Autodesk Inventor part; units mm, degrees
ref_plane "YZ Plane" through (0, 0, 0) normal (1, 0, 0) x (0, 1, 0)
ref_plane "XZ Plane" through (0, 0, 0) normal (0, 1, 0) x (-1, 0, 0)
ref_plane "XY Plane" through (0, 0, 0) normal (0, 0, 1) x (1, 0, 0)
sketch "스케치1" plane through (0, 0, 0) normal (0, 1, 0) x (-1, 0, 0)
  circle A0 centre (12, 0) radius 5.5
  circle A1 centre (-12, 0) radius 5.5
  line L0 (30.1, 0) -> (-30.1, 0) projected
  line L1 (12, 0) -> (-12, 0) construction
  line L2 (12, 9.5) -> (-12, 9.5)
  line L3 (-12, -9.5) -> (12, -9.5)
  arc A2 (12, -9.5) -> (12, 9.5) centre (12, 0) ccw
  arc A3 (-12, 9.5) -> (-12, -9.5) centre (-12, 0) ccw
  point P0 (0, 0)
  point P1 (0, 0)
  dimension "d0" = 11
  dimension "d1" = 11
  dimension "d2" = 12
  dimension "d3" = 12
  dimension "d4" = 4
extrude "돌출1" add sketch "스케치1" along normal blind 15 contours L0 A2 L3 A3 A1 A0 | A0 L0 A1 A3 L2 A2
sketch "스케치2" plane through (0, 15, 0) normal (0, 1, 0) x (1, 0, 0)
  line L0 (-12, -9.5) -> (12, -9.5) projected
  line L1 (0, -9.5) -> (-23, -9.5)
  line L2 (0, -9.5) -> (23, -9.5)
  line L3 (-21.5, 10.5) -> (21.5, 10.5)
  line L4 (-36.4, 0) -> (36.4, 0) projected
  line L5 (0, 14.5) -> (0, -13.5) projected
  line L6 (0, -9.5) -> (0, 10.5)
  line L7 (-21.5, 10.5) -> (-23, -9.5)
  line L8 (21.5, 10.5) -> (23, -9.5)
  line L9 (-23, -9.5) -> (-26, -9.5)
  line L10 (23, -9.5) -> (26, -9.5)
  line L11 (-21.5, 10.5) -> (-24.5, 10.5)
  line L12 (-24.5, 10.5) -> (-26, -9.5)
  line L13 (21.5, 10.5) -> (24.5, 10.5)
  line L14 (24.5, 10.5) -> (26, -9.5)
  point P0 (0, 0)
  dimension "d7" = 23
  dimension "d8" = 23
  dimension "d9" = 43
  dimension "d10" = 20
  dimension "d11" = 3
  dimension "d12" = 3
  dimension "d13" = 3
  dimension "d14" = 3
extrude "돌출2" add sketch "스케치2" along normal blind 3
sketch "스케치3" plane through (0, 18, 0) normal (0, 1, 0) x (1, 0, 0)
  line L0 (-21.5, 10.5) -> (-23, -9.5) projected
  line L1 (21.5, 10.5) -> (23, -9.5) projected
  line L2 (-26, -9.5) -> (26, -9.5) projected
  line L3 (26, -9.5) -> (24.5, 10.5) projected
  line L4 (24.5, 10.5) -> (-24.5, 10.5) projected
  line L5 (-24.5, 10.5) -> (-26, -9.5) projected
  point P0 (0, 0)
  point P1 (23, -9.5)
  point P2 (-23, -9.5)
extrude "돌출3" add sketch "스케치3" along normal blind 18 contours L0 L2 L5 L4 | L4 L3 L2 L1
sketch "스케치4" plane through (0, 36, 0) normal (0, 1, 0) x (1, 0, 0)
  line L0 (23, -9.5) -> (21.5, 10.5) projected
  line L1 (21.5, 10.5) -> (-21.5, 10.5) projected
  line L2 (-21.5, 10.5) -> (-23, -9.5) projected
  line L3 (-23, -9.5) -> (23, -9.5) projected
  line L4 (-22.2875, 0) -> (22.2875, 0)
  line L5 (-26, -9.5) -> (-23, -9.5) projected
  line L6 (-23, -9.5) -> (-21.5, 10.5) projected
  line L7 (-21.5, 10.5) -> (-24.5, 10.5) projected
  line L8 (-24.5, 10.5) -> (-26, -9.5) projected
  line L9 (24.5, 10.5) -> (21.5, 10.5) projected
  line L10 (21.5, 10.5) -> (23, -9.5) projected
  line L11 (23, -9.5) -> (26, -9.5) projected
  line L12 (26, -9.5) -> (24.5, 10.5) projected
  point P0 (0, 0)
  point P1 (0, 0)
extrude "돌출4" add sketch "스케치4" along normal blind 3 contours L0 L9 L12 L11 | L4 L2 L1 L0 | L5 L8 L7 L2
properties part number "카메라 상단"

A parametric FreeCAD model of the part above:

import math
import FreeCAD as App
import Part
import Sketcher
from FreeCAD import Vector
Q = App.Units.Quantity

doc = App.newDocument("Part")
body = doc.addObject("PartDesign::Body", "Body")

# Sketch on XZ plane
sketch1 = doc.addObject("Sketcher::SketchObject", "Sketch")
body.addObject(sketch1)
sketch1.AttachmentSupport = (doc.XZ_Plane, [""])
sketch1.MapMode = "FlatFace"
sketch1.addGeometry(Part.ArcOfCircle(Part.Circle(Vector(-12, 0, 0), Vector(0, 0, 1), 9.5), math.radians(90), math.radians(270)), False)
sketch1.addGeometry(Part.LineSegment(Vector(-12, 9.5, 0), Vector(12, 9.5, 0)), False)
sketch1.addGeometry(Part.ArcOfCircle(Part.Circle(Vector(12, 0, 0), Vector(0, 0, 1), 9.5), math.radians(-90), math.radians(90)), False)
sketch1.addGeometry(Part.LineSegment(Vector(12, -9.5, 0), Vector(-12, -9.5, 0)), False)
sketch1.addGeometry(Part.Circle(Vector(12, 0, 0), Vector(0, 0, 1), 5.5), False)
sketch1.addGeometry(Part.Circle(Vector(-12, 0, 0), Vector(0, 0, 1), 5.5), False)
sketch1.addConstraint(Sketcher.Constraint("Tangent", 0, 1, 1, 1))
sketch1.addConstraint(Sketcher.Constraint("Tangent", 1, 2, 2, 2))
sketch1.addConstraint(Sketcher.Constraint("Tangent", 2, 1, 3, 1))
sketch1.addConstraint(Sketcher.Constraint("Tangent", 3, 2, 0, 2))
sketch1.addConstraint(Sketcher.Constraint("Horizontal", 1))
sketch1.addConstraint(Sketcher.Constraint("Horizontal", 3))
sketch1.addConstraint(Sketcher.Constraint("Coincident", 4, 3, 2, 3))
sketch1.addConstraint(Sketcher.Constraint("Coincident", 5, 3, 0, 3))
sketch1.addConstraint(Sketcher.Constraint("Equal", 4, 5))
sketch1.addConstraint(Sketcher.Constraint("Symmetric", 0, 3, 2, 3, -1, 1))
sketch1.addConstraint(Sketcher.Constraint("Diameter", 4, Q("11 mm")))
sketch1.addConstraint(Sketcher.Constraint("DistanceX", 0, 3, -1, 1, Q("12 mm")))
sketch1.addConstraint(Sketcher.Constraint("Radius", 0, Q("9.5 mm")))
pad1 = doc.addObject("PartDesign::Pad", "Pad")
body.addObject(pad1)
pad1.Profile = sketch1
pad1.Length = 15
pad1.Reversed = True

# Sketch on XZ plane
sketch2 = doc.addObject("Sketcher::SketchObject", "Sketch001")
body.addObject(sketch2)
sketch2.AttachmentSupport = (doc.XZ_Plane, [""])
sketch2.MapMode = "FlatFace"
sketch2.AttachmentOffset = App.Placement(Vector(0, 0, -15), App.Rotation())
sketch2.addGeometry(Part.LineSegment(Vector(26, 9.5, 0), Vector(24.5, -10.5, 0)), False)
sketch2.addGeometry(Part.LineSegment(Vector(24.5, -10.5, 0), Vector(-24.5, -10.5, 0)), False)
sketch2.addGeometry(Part.LineSegment(Vector(-24.5, -10.5, 0), Vector(-26, 9.5, 0)), False)
sketch2.addGeometry(Part.LineSegment(Vector(-26, 9.5, 0), Vector(26, 9.5, 0)), False)
sketch2.addConstraint(Sketcher.Constraint("Coincident", 0, 2, 1, 1))
sketch2.addConstraint(Sketcher.Constraint("Coincident", 1, 2, 2, 1))
sketch2.addConstraint(Sketcher.Constraint("Coincident", 2, 2, 3, 1))
sketch2.addConstraint(Sketcher.Constraint("Coincident", 3, 2, 0, 1))
sketch2.addConstraint(Sketcher.Constraint("Horizontal", 1))
sketch2.addConstraint(Sketcher.Constraint("Horizontal", 3))
sketch2.addConstraint(Sketcher.Constraint("Equal", 0, 2))
sketch2.addConstraint(Sketcher.Constraint("DistanceY", 1, 2, 2, 2, Q("20 mm")))
sketch2.addConstraint(Sketcher.Constraint("DistanceX", 1, 2, 1, 1, Q("49 mm")))
sketch2.addConstraint(Sketcher.Constraint("DistanceX", 3, 1, 3, 2, Q("52 mm")))
sketch2.addConstraint(Sketcher.Constraint("DistanceX", 2, 2, -1, 1, Q("26 mm")))
sketch2.addConstraint(Sketcher.Constraint("DistanceY", 0, 2, -1, 1, Q("10.5 mm")))
pad2 = doc.addObject("PartDesign::Pad", "Pad001")
body.addObject(pad2)
pad2.Profile = sketch2
pad2.Length = 3
pad2.Reversed = True

# Sketch on XZ plane
sketch3 = doc.addObject("Sketcher::SketchObject", "Sketch002")
body.addObject(sketch3)
sketch3.AttachmentSupport = (doc.XZ_Plane, [""])
sketch3.MapMode = "FlatFace"
sketch3.AttachmentOffset = App.Placement(Vector(0, 0, -18), App.Rotation())
sketch3.addGeometry(Part.LineSegment(Vector(-23, 9.5, 0), Vector(-21.5, -10.5, 0)), False)
sketch3.addGeometry(Part.LineSegment(Vector(-21.5, -10.5, 0), Vector(-24.5, -10.5, 0)), False)
sketch3.addGeometry(Part.LineSegment(Vector(-24.5, -10.5, 0), Vector(-26, 9.5, 0)), False)
sketch3.addGeometry(Part.LineSegment(Vector(-26, 9.5, 0), Vector(-23, 9.5, 0)), False)
sketch3.addGeometry(Part.LineSegment(Vector(24.5, -10.5, 0), Vector(21.5, -10.5, 0)), False)
sketch3.addGeometry(Part.LineSegment(Vector(21.5, -10.5, 0), Vector(23, 9.5, 0)), False)
sketch3.addGeometry(Part.LineSegment(Vector(23, 9.5, 0), Vector(26, 9.5, 0)), False)
sketch3.addGeometry(Part.LineSegment(Vector(26, 9.5, 0), Vector(24.5, -10.5, 0)), False)
sketch3.addConstraint(Sketcher.Constraint("Coincident", 0, 2, 1, 1))
sketch3.addConstraint(Sketcher.Constraint("Coincident", 1, 2, 2, 1))
sketch3.addConstraint(Sketcher.Constraint("Coincident", 2, 2, 3, 1))
sketch3.addConstraint(Sketcher.Constraint("Coincident", 3, 2, 0, 1))
sketch3.addConstraint(Sketcher.Constraint("Coincident", 4, 2, 5, 1))
sketch3.addConstraint(Sketcher.Constraint("Coincident", 5, 2, 6, 1))
sketch3.addConstraint(Sketcher.Constraint("Coincident", 6, 2, 7, 1))
sketch3.addConstraint(Sketcher.Constraint("Coincident", 7, 2, 4, 1))
sketch3.addConstraint(Sketcher.Constraint("Horizontal", 1))
sketch3.addConstraint(Sketcher.Constraint("Horizontal", 3))
sketch3.addConstraint(Sketcher.Constraint("Horizontal", 4))
sketch3.addConstraint(Sketcher.Constraint("Horizontal", 6))
sketch3.addConstraint(Sketcher.Constraint("Symmetric", 0, 2, 4, 2, -2))
sketch3.addConstraint(Sketcher.Constraint("Symmetric", 3, 2, 5, 2, -2))
sketch3.addConstraint(Sketcher.Constraint("Parallel", 0, 2))
sketch3.addConstraint(Sketcher.Constraint("Parallel", 5, 7))
sketch3.addConstraint(Sketcher.Constraint("Equal", 3, 4))
sketch3.addConstraint(Sketcher.Constraint("DistanceX", 1, 2, 1, 1, Q("3 mm")))
sketch3.addConstraint(Sketcher.Constraint("DistanceX", 2, 2, -1, 1, Q("26 mm")))
sketch3.addConstraint(Sketcher.Constraint("DistanceY", 1, 2, 2, 2, Q("20 mm")))
sketch3.addConstraint(Sketcher.Constraint("DistanceX", 0, 2, 4, 2, Q("43 mm")))
sketch3.addConstraint(Sketcher.Constraint("DistanceY", 0, 2, -1, 1, Q("10.5 mm")))
pad3 = doc.addObject("PartDesign::Pad", "Pad002")
body.addObject(pad3)
pad3.Profile = sketch3
pad3.Length = 18
pad3.Reversed = True

# Sketch on XZ plane
sketch4 = doc.addObject("Sketcher::SketchObject", "Sketch003")
body.addObject(sketch4)
sketch4.AttachmentSupport = (doc.XZ_Plane, [""])
sketch4.MapMode = "FlatFace"
sketch4.AttachmentOffset = App.Placement(Vector(0, 0, -36), App.Rotation())
sketch4.addGeometry(Part.LineSegment(Vector(22.2875, 0, 0), Vector(23, 9.5, 0)), False)
sketch4.addGeometry(Part.LineSegment(Vector(23, 9.5, 0), Vector(26, 9.5, 0)), False)
sketch4.addGeometry(Part.LineSegment(Vector(26, 9.5, 0), Vector(24.5, -10.5, 0)), False)
sketch4.addGeometry(Part.LineSegment(Vector(24.5, -10.5, 0), Vector(-24.5, -10.5, 0)), False)
sketch4.addGeometry(Part.LineSegment(Vector(-24.5, -10.5, 0), Vector(-26, 9.5, 0)), False)
sketch4.addGeometry(Part.LineSegment(Vector(-26, 9.5, 0), Vector(-23, 9.5, 0)), False)
sketch4.addGeometry(Part.LineSegment(Vector(-23, 9.5, 0), Vector(-22.2875, 0, 0)), False)
sketch4.addGeometry(Part.LineSegment(Vector(-22.2875, 0, 0), Vector(22.2875, 0, 0)), False)
sketch4.addConstraint(Sketcher.Constraint("Coincident", 0, 2, 1, 1))
sketch4.addConstraint(Sketcher.Constraint("Coincident", 1, 2, 2, 1))
sketch4.addConstraint(Sketcher.Constraint("Coincident", 2, 2, 3, 1))
sketch4.addConstraint(Sketcher.Constraint("Coincident", 3, 2, 4, 1))
sketch4.addConstraint(Sketcher.Constraint("Coincident", 4, 2, 5, 1))
sketch4.addConstraint(Sketcher.Constraint("Coincident", 5, 2, 6, 1))
sketch4.addConstraint(Sketcher.Constraint("Coincident", 6, 2, 7, 1))
sketch4.addConstraint(Sketcher.Constraint("Coincident", 7, 2, 0, 1))
sketch4.addConstraint(Sketcher.Constraint("Horizontal", 1))
sketch4.addConstraint(Sketcher.Constraint("Horizontal", 3))
sketch4.addConstraint(Sketcher.Constraint("Horizontal", 5))
sketch4.addConstraint(Sketcher.Constraint("Horizontal", 7))
sketch4.addConstraint(Sketcher.Constraint("Symmetric", 6, 2, 7, 2, -1, 1))
sketch4.addConstraint(Sketcher.Constraint("Symmetric", 1, 2, 4, 2, -2))
sketch4.addConstraint(Sketcher.Constraint("Parallel", 0, 2))
sketch4.addConstraint(Sketcher.Constraint("Parallel", 4, 6))
sketch4.addConstraint(Sketcher.Constraint("Equal", 1, 5))
sketch4.addConstraint(Sketcher.Constraint("DistanceX", 1, 1, 1, 2, Q("3 mm")))
sketch4.addConstraint(Sketcher.Constraint("DistanceX", 3, 2, 3, 1, Q("49 mm")))
sketch4.addConstraint(Sketcher.Constraint("DistanceX", -1, 1, 0, 2, Q("23 mm")))
sketch4.addConstraint(Sketcher.Constraint("DistanceY", 2, 2, 0, 2, Q("20 mm")))
sketch4.addConstraint(Sketcher.Constraint("DistanceY", -1, 1, 0, 2, Q("9.5 mm")))
pad4 = doc.addObject("PartDesign::Pad", "Pad003")
body.addObject(pad4)
pad4.Profile = sketch4
pad4.Length = 3
pad4.Reversed = True

doc.recompute()
